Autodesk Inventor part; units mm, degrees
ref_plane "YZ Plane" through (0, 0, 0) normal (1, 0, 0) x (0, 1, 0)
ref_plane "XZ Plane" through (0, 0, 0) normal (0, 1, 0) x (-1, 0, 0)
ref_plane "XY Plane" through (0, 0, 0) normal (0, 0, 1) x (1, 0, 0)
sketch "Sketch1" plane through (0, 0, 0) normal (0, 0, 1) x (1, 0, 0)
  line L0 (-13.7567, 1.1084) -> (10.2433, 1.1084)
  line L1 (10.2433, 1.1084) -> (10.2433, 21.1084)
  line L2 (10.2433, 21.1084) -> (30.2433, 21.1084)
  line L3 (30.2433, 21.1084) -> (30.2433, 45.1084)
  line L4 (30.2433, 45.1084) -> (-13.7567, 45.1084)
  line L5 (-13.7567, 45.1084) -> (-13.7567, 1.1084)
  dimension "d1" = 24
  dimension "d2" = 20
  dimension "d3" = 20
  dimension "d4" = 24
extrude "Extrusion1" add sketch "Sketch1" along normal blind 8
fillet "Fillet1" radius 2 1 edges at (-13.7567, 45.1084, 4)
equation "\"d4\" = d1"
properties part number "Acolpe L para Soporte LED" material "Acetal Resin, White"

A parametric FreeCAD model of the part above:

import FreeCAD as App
import Part
import Sketcher
from FreeCAD import Vector


def edges_at(feature, points):
    """Names of the edges that pass closest to the given points."""
    edges = feature.Shape.Edges
    near = lambda p: min(range(len(edges)), key=lambda i: edges[i].distToShape(Part.Vertex(*p))[0])
    return sorted({f"Edge{near(p) + 1}" for p in points})

doc = App.newDocument("Part")
body = doc.addObject("PartDesign::Body", "Body")

# Sketch on XY plane
sketch1 = body.newObject("Sketcher::SketchObject", "Sketch")
sketch1.AttachmentSupport = (doc.getObject("XY_Plane"), [""])
sketch1.MapMode = "FlatFace"
sketch1.addGeometry([
    Part.LineSegment(Vector(-14, 45, 0), Vector(-14, 1, 0)),  # 0
    Part.LineSegment(Vector(-14, 1, 0), Vector(10, 1, 0)),  # 1
    Part.LineSegment(Vector(10, 1, 0), Vector(10, 21, 0)),  # 2
    Part.LineSegment(Vector(10, 21, 0), Vector(30, 21, 0)),  # 3
    Part.LineSegment(Vector(30, 21, 0), Vector(30, 45, 0)),  # 4
    Part.LineSegment(Vector(30, 45, 0), Vector(-14, 45, 0)),  # 5
], False)
sketch1.addConstraint([
    Sketcher.Constraint("Coincident", 0, 2, 1, 1),
    Sketcher.Constraint("Coincident", 1, 2, 2, 1),
    Sketcher.Constraint("Coincident", 2, 2, 3, 1),
    Sketcher.Constraint("Coincident", 3, 2, 4, 1),
    Sketcher.Constraint("Coincident", 4, 2, 5, 1),
    Sketcher.Constraint("Coincident", 5, 2, 0, 1),
    Sketcher.Constraint("Vertical", 0),
    Sketcher.Constraint("Horizontal", 1),
    Sketcher.Constraint("Vertical", 2),
    Sketcher.Constraint("Horizontal", 3),
    Sketcher.Constraint("Vertical", 4),
    Sketcher.Constraint("Horizontal", 5),
    Sketcher.Constraint("Equal", 5, 0),
    Sketcher.Constraint("Equal", 3, 2),
    Sketcher.Constraint("DistanceX", 1, 1, 1, 2, 24.0),
    Sketcher.Constraint("DistanceX", 3, 1, 3, 2, 20.0),
    Sketcher.Constraint("DistanceX", 0, 2, -1, 1, 13.7567),
    Sketcher.Constraint("DistanceY", -1, 1, 0, 2, 1.1084),
])
pad1 = body.newObject("PartDesign::Pad", "Pad")
pad1.Profile = sketch1
pad1.Length = 8
doc.recompute()

fillet = body.newObject("PartDesign::Fillet", "Fillet")
fillet.Base = (pad1, edges_at(pad1, [(-13.757, 45.108, 4)]))
fillet.Radius = 2

doc.recompute()
